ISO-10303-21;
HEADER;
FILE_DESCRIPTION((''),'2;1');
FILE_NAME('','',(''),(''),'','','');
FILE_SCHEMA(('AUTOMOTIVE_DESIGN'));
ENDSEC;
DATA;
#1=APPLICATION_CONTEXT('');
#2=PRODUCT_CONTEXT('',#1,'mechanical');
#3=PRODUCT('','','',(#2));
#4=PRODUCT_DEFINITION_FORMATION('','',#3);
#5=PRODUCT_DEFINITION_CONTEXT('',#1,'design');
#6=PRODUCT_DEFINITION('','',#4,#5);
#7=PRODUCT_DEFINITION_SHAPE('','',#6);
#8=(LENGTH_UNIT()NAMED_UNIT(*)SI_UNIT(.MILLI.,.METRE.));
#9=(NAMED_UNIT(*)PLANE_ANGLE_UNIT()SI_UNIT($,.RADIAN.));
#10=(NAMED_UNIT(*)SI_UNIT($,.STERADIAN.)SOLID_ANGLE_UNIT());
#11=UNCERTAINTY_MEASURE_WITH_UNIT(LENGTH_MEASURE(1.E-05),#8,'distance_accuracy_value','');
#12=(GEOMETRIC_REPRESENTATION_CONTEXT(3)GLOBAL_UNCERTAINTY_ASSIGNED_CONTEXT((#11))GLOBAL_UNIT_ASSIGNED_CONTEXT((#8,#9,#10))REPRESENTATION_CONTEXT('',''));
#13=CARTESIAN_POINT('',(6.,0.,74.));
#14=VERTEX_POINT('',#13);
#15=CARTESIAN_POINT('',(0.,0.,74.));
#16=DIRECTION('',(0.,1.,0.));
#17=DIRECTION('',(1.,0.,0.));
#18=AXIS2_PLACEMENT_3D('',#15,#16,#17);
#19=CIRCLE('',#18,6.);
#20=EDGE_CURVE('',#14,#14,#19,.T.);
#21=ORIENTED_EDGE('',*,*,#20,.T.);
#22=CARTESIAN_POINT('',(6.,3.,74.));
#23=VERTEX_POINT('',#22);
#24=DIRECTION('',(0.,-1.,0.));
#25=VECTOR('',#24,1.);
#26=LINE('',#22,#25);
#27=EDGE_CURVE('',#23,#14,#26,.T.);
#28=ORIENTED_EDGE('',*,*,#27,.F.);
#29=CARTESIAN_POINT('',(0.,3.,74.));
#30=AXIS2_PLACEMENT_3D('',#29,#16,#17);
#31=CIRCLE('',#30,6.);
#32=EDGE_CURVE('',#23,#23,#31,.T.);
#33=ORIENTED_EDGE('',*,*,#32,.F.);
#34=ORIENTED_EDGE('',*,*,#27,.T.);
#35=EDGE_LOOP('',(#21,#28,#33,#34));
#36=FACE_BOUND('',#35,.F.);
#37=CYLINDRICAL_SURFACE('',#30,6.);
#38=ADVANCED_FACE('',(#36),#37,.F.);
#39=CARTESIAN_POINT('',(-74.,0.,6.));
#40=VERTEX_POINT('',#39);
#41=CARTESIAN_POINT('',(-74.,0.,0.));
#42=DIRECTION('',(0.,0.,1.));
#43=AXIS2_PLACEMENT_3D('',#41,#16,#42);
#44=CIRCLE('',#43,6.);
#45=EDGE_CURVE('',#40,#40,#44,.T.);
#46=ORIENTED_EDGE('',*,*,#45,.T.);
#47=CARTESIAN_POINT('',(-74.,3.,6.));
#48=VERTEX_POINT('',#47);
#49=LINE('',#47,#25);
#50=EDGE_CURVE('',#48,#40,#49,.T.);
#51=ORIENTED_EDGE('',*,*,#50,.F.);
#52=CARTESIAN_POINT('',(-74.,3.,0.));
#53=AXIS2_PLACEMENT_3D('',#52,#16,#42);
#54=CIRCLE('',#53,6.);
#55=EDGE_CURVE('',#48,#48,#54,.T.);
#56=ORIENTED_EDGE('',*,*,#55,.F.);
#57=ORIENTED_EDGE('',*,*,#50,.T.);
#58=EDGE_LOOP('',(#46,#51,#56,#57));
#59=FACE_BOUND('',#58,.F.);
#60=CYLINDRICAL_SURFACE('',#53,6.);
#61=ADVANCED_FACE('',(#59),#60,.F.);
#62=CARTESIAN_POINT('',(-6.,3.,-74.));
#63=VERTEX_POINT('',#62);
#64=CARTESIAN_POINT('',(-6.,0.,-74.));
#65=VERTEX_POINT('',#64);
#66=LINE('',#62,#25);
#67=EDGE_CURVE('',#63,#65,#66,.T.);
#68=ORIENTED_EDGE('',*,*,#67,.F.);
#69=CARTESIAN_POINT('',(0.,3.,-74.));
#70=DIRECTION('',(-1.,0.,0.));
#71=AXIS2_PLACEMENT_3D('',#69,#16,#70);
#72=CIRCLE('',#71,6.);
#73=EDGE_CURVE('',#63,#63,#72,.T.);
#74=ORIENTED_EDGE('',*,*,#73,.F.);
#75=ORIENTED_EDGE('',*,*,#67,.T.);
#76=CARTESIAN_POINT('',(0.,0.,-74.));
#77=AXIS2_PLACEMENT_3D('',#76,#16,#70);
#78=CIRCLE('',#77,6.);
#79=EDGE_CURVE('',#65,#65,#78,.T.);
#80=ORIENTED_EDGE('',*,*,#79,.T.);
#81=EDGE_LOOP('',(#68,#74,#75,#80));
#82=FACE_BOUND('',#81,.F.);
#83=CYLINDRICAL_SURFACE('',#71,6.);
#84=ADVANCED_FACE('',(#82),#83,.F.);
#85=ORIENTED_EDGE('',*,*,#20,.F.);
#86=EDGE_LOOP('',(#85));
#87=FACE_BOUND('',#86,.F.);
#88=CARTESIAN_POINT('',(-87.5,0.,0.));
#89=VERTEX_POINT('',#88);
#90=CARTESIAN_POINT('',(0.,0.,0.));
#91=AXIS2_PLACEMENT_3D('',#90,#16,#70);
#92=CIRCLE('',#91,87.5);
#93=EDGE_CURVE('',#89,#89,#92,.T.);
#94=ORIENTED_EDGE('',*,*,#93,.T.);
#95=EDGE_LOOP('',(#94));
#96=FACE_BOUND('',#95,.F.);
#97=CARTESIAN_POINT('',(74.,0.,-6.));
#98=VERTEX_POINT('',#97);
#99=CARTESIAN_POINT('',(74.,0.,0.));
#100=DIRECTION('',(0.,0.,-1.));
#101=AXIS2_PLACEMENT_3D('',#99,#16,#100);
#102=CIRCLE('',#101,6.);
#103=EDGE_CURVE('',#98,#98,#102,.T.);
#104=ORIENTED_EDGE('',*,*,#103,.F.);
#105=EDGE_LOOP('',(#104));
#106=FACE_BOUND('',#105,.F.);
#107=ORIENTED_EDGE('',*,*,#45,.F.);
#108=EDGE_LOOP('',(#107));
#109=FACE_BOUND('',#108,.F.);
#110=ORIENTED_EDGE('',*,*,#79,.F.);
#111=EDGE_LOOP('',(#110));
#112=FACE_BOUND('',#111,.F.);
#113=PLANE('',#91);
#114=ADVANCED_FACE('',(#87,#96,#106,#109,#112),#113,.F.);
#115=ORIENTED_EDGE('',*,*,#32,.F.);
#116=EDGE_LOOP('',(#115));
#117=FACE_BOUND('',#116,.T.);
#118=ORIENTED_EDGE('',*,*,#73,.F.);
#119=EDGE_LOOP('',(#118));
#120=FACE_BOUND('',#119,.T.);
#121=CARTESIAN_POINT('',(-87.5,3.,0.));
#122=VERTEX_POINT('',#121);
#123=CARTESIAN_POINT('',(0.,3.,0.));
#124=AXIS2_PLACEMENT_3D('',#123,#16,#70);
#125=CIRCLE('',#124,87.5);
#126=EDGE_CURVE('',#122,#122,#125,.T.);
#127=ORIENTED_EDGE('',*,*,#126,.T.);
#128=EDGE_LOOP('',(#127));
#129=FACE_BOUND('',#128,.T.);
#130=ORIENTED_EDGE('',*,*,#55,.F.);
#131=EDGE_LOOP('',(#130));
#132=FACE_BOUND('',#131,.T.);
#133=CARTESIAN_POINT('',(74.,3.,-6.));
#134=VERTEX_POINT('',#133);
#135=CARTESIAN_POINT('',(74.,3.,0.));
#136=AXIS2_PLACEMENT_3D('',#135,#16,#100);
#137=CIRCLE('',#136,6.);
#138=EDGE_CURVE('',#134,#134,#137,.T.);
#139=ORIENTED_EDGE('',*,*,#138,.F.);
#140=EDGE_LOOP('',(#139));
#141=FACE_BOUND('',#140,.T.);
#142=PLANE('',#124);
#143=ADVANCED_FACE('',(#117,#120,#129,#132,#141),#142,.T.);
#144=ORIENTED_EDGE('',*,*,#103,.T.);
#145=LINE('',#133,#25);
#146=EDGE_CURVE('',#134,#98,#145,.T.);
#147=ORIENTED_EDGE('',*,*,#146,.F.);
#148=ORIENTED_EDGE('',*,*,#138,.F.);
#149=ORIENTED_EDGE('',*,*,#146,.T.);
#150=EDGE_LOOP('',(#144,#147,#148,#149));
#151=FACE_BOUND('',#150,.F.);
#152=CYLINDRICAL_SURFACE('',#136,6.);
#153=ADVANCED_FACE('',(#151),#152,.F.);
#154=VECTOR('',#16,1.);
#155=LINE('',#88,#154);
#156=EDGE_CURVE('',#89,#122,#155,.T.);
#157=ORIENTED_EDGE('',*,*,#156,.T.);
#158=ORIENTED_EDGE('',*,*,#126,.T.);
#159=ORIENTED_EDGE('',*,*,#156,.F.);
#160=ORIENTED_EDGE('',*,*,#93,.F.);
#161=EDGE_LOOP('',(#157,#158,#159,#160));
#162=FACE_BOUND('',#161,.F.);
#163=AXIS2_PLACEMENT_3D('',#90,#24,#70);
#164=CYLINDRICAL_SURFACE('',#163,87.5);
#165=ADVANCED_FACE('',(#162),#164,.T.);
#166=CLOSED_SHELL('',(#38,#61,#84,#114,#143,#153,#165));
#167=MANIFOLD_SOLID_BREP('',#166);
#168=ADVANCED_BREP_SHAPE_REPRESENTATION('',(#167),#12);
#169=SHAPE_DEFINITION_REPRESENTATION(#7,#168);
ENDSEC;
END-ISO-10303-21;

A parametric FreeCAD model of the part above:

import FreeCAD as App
import Part
import Sketcher

V = App.Vector
Q = App.Units.Quantity

doc = App.newDocument("Part")
body = doc.addObject("PartDesign::Body", "Body")

# Sketch on XZ plane
sketch1 = body.newObject("Sketcher::SketchObject", "Sketch")
sketch1.AttachmentSupport = (doc.getObject("XZ_Plane"), [""])
sketch1.MapMode = "FlatFace"
sketch1.addGeometry(Part.Circle(V(0, 0, 0), V(0, 0, 1), 87.5), False)
sketch1.addConstraint(Sketcher.Constraint("Coincident", 0, 3, -1, 1))
sketch1.addConstraint(Sketcher.Constraint("Diameter", 0, Q("175 mm")))
pad1 = body.newObject("PartDesign::Pad", "Pad")
pad1.Profile = sketch1
pad1.Length = 3
pad1.Reversed = True

# Sketch on XZ plane
sketch2 = body.newObject("Sketcher::SketchObject", "Sketch001")
sketch2.AttachmentSupport = (doc.getObject("XZ_Plane"), [""])
sketch2.MapMode = "FlatFace"
sketch2.AttachmentOffset = App.Placement(V(0, 0, -3), App.Rotation())
sketch2.addGeometry(Part.Circle(V(0, 74, 0), V(0, 0, 1), 6), False)
sketch2.addConstraint(Sketcher.Constraint("PointOnObject", 0, 3, -2))
sketch2.addConstraint(Sketcher.Constraint("Diameter", 0, Q("12 mm")))
sketch2.addConstraint(Sketcher.Constraint("DistanceY", -1, 1, 0, 3, Q("74 mm")))
pocket1 = body.newObject("PartDesign::Pocket", "Pocket")
pocket1.Profile = sketch2
pocket1.Type = "ThroughAll"
pocket1.Reversed = True
doc.recompute()

polarpattern = body.newObject("PartDesign::PolarPattern", "PolarPattern")
polarpattern.Originals = [pocket1]
polarpattern.Axis = (doc.getObject("Y_Axis"), [""])
polarpattern.Angle = 360
polarpattern.Occurrences = 4
body.Tip = polarpattern

doc.recompute()
